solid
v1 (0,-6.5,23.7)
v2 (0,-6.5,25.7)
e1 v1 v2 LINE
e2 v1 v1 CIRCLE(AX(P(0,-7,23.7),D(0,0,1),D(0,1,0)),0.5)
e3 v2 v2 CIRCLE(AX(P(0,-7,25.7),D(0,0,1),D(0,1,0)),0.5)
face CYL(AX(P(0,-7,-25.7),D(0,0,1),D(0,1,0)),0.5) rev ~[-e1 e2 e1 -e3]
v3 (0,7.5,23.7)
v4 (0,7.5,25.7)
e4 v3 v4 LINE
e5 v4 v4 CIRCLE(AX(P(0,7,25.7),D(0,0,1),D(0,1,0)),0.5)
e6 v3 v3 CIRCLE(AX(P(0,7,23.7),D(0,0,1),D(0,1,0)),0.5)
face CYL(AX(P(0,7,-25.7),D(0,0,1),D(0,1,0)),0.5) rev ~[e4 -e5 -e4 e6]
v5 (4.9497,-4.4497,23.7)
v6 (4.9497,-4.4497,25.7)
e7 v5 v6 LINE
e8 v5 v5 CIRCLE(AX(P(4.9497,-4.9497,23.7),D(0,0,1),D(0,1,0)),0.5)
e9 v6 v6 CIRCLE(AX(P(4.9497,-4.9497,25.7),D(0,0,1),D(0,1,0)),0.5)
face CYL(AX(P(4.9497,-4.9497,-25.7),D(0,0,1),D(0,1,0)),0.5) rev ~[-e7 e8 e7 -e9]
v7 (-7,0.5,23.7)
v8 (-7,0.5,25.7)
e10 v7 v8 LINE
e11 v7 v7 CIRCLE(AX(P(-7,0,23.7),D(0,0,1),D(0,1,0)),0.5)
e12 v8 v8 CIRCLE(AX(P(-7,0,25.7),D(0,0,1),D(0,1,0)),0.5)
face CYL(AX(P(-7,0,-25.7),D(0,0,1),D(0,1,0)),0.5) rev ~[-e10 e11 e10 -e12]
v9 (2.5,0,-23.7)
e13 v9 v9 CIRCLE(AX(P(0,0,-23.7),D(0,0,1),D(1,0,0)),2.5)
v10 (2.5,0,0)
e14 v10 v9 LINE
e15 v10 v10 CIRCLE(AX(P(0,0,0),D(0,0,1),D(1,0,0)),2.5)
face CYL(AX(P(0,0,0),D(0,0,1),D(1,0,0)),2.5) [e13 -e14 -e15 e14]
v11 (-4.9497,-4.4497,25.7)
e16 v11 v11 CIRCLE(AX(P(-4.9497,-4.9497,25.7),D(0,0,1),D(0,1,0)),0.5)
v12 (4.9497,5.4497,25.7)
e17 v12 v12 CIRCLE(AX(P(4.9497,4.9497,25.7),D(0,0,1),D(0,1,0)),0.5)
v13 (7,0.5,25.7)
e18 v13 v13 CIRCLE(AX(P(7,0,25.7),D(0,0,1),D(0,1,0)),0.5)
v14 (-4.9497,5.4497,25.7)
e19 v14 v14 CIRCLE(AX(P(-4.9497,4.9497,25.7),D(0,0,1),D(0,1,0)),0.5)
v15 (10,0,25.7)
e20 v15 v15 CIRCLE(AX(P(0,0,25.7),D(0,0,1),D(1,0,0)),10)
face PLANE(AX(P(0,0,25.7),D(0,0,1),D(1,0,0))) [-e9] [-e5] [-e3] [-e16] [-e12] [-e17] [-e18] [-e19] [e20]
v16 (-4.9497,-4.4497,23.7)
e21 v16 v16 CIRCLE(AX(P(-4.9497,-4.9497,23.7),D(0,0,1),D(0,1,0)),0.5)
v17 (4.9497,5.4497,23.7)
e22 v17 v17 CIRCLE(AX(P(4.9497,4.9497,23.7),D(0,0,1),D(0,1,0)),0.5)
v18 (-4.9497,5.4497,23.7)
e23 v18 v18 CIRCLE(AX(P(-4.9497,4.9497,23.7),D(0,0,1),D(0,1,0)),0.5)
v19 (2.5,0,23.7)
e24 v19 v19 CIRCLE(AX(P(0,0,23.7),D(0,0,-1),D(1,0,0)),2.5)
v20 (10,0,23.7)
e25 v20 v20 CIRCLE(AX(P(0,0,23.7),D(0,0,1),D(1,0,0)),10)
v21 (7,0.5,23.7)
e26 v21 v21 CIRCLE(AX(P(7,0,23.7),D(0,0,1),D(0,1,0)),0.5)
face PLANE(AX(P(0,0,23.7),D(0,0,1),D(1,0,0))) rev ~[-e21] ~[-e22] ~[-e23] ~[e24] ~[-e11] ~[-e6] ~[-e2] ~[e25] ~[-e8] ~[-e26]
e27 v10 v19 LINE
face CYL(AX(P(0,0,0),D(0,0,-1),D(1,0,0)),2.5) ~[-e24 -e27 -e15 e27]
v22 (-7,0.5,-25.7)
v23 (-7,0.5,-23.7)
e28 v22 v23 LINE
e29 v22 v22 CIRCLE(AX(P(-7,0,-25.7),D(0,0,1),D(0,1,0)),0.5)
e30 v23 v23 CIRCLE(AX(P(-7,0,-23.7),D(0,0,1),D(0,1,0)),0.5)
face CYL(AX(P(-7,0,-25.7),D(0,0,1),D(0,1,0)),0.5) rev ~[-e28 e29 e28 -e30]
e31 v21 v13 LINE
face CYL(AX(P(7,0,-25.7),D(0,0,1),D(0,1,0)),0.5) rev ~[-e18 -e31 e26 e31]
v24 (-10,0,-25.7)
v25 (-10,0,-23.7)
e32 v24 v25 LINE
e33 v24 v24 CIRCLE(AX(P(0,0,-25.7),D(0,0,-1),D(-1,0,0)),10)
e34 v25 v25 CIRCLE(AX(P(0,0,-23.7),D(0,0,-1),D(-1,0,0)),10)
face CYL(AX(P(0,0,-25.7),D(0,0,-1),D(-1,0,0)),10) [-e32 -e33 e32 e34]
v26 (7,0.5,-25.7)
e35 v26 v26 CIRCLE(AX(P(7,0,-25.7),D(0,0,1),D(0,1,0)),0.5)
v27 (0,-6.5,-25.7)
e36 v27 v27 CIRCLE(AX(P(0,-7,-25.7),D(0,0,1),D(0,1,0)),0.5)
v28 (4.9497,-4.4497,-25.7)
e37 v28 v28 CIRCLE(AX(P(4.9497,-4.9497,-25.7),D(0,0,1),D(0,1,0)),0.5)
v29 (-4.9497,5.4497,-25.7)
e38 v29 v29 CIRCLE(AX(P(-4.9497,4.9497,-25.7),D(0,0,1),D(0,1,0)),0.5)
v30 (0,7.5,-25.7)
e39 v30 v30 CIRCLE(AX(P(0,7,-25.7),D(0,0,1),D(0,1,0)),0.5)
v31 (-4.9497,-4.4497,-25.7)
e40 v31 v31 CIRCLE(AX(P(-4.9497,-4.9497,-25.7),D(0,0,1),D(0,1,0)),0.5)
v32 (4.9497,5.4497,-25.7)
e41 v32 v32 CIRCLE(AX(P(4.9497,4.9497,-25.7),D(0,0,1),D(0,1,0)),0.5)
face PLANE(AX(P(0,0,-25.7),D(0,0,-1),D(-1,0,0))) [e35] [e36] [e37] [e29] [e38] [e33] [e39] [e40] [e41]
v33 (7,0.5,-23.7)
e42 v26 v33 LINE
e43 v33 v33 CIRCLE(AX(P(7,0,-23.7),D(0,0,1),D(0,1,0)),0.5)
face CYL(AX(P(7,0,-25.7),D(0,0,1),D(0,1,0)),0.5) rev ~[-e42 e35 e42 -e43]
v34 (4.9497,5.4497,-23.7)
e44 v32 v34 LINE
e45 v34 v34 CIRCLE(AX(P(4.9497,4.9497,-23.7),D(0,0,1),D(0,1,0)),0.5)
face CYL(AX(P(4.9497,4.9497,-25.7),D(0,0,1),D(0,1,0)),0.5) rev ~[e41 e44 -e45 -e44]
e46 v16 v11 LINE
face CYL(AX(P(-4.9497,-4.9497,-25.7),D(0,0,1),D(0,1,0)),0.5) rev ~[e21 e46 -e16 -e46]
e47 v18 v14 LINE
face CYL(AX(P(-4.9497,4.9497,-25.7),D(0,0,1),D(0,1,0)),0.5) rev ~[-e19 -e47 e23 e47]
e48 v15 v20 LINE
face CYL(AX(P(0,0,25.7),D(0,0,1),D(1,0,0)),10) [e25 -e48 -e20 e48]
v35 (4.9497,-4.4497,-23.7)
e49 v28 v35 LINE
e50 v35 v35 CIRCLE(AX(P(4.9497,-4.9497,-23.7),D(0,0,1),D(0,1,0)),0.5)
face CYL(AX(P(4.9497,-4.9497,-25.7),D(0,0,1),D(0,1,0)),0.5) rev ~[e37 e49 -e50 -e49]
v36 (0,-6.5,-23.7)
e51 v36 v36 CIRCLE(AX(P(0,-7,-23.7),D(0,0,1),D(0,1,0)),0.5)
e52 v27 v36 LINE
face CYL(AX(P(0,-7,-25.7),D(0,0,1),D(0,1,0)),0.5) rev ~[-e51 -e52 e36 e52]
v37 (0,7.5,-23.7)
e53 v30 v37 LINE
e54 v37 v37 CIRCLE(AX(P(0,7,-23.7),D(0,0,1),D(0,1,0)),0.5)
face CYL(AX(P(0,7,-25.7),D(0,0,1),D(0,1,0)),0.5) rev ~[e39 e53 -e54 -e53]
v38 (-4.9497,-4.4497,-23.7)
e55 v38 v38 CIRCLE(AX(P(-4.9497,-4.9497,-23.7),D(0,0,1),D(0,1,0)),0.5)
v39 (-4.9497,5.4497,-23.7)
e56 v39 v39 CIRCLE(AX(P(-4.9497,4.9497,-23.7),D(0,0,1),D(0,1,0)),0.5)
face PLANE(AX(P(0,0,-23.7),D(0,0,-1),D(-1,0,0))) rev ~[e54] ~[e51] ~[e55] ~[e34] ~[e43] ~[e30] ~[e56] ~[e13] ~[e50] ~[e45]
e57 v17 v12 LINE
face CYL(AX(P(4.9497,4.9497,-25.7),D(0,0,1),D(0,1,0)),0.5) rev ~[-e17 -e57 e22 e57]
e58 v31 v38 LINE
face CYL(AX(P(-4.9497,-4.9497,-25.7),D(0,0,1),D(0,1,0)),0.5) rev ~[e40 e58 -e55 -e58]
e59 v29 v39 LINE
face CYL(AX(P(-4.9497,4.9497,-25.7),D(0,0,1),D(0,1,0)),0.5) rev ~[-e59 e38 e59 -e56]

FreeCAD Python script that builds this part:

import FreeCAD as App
import Part
import Sketcher

V = App.Vector

doc = App.newDocument("Part")
body = doc.addObject("PartDesign::Body", "Body")

# Sketch on XY plane
sketch1 = doc.addObject("Sketcher::SketchObject", "Sketch")
body.addObject(sketch1)
sketch1.AttachmentSupport = (doc.XY_Plane, [""])
sketch1.MapMode = "FlatFace"
sketch1.addGeometry(Part.Circle(V(0, 0, 0), V(0, 0, 1), 2.5), False)
sketch1.addConstraint(Sketcher.Constraint("Coincident", 0, 3, -1, 1))
sketch1.addConstraint(Sketcher.Constraint("Diameter", 0, 5.0))
pad1 = doc.addObject("PartDesign::Pad", "Pad")
body.addObject(pad1)
pad1.Profile = sketch1
pad1.Length = 51.4
pad1.Midplane = True

# Sketch on XY plane
sketch2 = doc.addObject("Sketcher::SketchObject", "Sketch001")
body.addObject(sketch2)
sketch2.AttachmentSupport = (doc.XY_Plane, [""])
sketch2.MapMode = "FlatFace"
sketch2.AttachmentOffset = App.Placement(V(0, 0, 25.7), App.Rotation())
sketch2.addGeometry(Part.Circle(V(0, 0, 0), V(0, 0, 1), 10), False)
sketch2.addConstraint(Sketcher.Constraint("Coincident", 0, 3, -1, 1))
sketch2.addConstraint(Sketcher.Constraint("Diameter", 0, 20.0))
pad2 = doc.addObject("PartDesign::Pad", "Pad001")
body.addObject(pad2)
pad2.Profile = sketch2
pad2.Length = 2
pad2.Reversed = True

# Sketch on XY plane
sketch3 = doc.addObject("Sketcher::SketchObject", "Sketch002")
body.addObject(sketch3)
sketch3.AttachmentSupport = (doc.XY_Plane, [""])
sketch3.MapMode = "FlatFace"
sketch3.AttachmentOffset = App.Placement(V(0, 0, -25.7), App.Rotation())
sketch3.addGeometry(Part.Circle(V(0, 0, 0), V(0, 0, 1), 10), False)
sketch3.addConstraint(Sketcher.Constraint("Coincident", 0, 3, -1, 1))
sketch3.addConstraint(Sketcher.Constraint("Diameter", 0, 20.0))
pad3 = doc.addObject("PartDesign::Pad", "Pad002")
body.addObject(pad3)
pad3.Profile = sketch3
pad3.Length = 2

# Sketch on XY plane
sketch4 = doc.addObject("Sketcher::SketchObject", "Sketch003")
body.addObject(sketch4)
sketch4.AttachmentSupport = (doc.XY_Plane, [""])
sketch4.MapMode = "FlatFace"
sketch4.AttachmentOffset = App.Placement(V(0, 0, -25.7), App.Rotation())
sketch4.addGeometry(Part.Circle(V(-7, 0, 0), V(0, 0, 1), 0.5), False)
sketch4.addGeometry(Part.Circle(V(-4.9, 4.9, 0), V(0, 0, 1), 0.5), False)
sketch4.addGeometry(Part.Circle(V(0, 7, 0), V(0, 0, 1), 0.5), False)
sketch4.addGeometry(Part.Circle(V(4.9, 4.9, 0), V(0, 0, 1), 0.5), False)
sketch4.addGeometry(Part.Circle(V(7, 0, 0), V(0, 0, 1), 0.5), False)
sketch4.addGeometry(Part.Circle(V(4.9, -4.9, 0), V(0, 0, 1), 0.5), False)
sketch4.addGeometry(Part.Circle(V(0, -7, 0), V(0, 0, 1), 0.5), False)
sketch4.addGeometry(Part.Circle(V(-4.9, -4.9, 0), V(0, 0, 1), 0.5), False)
sketch4.addConstraint(Sketcher.Constraint("Equal", 0, 1))
sketch4.addConstraint(Sketcher.Constraint("Equal", 1, 2))
sketch4.addConstraint(Sketcher.Constraint("Equal", 2, 3))
sketch4.addConstraint(Sketcher.Constraint("Equal", 3, 4))
sketch4.addConstraint(Sketcher.Constraint("Equal", 4, 5))
sketch4.addConstraint(Sketcher.Constraint("Equal", 5, 6))
sketch4.addConstraint(Sketcher.Constraint("Equal", 6, 7))
sketch4.addConstraint(Sketcher.Constraint("Symmetric", 0, 3, 4, 3, -1, 1))
sketch4.addConstraint(Sketcher.Constraint("Symmetric", 1, 3, 5, 3, -1, 1))
sketch4.addConstraint(Sketcher.Constraint("Symmetric", 2, 3, 6, 3, -1, 1))
sketch4.addConstraint(Sketcher.Constraint("Symmetric", 3, 3, 7, 3, -1, 1))
sketch4.addConstraint(Sketcher.Constraint("Symmetric", 1, 3, 3, 3, -2))
sketch4.addConstraint(Sketcher.Constraint("PointOnObject", 0, 3, -1))
sketch4.addConstraint(Sketcher.Constraint("PointOnObject", 2, 3, -2))
sketch4.addConstraint(Sketcher.Constraint("Diameter", 0, 1.0))
sketch4.addConstraint(Sketcher.Constraint("DistanceX", 0, 3, -1, 1, 7.0))
sketch4.addConstraint(Sketcher.Constraint("DistanceY", -1, 1, 2, 3, 7.0))
sketch4.addConstraint(Sketcher.Constraint("DistanceX", 1, 3, -1, 1, 4.9497))
sketch4.addConstraint(Sketcher.Constraint("DistanceY", -1, 1, 1, 3, 4.9497))
doc.recompute()
hole = doc.addObject("PartDesign::Hole", "Hole")
body.addObject(hole)
hole.Profile = sketch4
hole.ThreadType = "None"
hole.Diameter = 1
hole.DepthType = "ThroughAll"
hole.Reversed = True

doc.recompute()
